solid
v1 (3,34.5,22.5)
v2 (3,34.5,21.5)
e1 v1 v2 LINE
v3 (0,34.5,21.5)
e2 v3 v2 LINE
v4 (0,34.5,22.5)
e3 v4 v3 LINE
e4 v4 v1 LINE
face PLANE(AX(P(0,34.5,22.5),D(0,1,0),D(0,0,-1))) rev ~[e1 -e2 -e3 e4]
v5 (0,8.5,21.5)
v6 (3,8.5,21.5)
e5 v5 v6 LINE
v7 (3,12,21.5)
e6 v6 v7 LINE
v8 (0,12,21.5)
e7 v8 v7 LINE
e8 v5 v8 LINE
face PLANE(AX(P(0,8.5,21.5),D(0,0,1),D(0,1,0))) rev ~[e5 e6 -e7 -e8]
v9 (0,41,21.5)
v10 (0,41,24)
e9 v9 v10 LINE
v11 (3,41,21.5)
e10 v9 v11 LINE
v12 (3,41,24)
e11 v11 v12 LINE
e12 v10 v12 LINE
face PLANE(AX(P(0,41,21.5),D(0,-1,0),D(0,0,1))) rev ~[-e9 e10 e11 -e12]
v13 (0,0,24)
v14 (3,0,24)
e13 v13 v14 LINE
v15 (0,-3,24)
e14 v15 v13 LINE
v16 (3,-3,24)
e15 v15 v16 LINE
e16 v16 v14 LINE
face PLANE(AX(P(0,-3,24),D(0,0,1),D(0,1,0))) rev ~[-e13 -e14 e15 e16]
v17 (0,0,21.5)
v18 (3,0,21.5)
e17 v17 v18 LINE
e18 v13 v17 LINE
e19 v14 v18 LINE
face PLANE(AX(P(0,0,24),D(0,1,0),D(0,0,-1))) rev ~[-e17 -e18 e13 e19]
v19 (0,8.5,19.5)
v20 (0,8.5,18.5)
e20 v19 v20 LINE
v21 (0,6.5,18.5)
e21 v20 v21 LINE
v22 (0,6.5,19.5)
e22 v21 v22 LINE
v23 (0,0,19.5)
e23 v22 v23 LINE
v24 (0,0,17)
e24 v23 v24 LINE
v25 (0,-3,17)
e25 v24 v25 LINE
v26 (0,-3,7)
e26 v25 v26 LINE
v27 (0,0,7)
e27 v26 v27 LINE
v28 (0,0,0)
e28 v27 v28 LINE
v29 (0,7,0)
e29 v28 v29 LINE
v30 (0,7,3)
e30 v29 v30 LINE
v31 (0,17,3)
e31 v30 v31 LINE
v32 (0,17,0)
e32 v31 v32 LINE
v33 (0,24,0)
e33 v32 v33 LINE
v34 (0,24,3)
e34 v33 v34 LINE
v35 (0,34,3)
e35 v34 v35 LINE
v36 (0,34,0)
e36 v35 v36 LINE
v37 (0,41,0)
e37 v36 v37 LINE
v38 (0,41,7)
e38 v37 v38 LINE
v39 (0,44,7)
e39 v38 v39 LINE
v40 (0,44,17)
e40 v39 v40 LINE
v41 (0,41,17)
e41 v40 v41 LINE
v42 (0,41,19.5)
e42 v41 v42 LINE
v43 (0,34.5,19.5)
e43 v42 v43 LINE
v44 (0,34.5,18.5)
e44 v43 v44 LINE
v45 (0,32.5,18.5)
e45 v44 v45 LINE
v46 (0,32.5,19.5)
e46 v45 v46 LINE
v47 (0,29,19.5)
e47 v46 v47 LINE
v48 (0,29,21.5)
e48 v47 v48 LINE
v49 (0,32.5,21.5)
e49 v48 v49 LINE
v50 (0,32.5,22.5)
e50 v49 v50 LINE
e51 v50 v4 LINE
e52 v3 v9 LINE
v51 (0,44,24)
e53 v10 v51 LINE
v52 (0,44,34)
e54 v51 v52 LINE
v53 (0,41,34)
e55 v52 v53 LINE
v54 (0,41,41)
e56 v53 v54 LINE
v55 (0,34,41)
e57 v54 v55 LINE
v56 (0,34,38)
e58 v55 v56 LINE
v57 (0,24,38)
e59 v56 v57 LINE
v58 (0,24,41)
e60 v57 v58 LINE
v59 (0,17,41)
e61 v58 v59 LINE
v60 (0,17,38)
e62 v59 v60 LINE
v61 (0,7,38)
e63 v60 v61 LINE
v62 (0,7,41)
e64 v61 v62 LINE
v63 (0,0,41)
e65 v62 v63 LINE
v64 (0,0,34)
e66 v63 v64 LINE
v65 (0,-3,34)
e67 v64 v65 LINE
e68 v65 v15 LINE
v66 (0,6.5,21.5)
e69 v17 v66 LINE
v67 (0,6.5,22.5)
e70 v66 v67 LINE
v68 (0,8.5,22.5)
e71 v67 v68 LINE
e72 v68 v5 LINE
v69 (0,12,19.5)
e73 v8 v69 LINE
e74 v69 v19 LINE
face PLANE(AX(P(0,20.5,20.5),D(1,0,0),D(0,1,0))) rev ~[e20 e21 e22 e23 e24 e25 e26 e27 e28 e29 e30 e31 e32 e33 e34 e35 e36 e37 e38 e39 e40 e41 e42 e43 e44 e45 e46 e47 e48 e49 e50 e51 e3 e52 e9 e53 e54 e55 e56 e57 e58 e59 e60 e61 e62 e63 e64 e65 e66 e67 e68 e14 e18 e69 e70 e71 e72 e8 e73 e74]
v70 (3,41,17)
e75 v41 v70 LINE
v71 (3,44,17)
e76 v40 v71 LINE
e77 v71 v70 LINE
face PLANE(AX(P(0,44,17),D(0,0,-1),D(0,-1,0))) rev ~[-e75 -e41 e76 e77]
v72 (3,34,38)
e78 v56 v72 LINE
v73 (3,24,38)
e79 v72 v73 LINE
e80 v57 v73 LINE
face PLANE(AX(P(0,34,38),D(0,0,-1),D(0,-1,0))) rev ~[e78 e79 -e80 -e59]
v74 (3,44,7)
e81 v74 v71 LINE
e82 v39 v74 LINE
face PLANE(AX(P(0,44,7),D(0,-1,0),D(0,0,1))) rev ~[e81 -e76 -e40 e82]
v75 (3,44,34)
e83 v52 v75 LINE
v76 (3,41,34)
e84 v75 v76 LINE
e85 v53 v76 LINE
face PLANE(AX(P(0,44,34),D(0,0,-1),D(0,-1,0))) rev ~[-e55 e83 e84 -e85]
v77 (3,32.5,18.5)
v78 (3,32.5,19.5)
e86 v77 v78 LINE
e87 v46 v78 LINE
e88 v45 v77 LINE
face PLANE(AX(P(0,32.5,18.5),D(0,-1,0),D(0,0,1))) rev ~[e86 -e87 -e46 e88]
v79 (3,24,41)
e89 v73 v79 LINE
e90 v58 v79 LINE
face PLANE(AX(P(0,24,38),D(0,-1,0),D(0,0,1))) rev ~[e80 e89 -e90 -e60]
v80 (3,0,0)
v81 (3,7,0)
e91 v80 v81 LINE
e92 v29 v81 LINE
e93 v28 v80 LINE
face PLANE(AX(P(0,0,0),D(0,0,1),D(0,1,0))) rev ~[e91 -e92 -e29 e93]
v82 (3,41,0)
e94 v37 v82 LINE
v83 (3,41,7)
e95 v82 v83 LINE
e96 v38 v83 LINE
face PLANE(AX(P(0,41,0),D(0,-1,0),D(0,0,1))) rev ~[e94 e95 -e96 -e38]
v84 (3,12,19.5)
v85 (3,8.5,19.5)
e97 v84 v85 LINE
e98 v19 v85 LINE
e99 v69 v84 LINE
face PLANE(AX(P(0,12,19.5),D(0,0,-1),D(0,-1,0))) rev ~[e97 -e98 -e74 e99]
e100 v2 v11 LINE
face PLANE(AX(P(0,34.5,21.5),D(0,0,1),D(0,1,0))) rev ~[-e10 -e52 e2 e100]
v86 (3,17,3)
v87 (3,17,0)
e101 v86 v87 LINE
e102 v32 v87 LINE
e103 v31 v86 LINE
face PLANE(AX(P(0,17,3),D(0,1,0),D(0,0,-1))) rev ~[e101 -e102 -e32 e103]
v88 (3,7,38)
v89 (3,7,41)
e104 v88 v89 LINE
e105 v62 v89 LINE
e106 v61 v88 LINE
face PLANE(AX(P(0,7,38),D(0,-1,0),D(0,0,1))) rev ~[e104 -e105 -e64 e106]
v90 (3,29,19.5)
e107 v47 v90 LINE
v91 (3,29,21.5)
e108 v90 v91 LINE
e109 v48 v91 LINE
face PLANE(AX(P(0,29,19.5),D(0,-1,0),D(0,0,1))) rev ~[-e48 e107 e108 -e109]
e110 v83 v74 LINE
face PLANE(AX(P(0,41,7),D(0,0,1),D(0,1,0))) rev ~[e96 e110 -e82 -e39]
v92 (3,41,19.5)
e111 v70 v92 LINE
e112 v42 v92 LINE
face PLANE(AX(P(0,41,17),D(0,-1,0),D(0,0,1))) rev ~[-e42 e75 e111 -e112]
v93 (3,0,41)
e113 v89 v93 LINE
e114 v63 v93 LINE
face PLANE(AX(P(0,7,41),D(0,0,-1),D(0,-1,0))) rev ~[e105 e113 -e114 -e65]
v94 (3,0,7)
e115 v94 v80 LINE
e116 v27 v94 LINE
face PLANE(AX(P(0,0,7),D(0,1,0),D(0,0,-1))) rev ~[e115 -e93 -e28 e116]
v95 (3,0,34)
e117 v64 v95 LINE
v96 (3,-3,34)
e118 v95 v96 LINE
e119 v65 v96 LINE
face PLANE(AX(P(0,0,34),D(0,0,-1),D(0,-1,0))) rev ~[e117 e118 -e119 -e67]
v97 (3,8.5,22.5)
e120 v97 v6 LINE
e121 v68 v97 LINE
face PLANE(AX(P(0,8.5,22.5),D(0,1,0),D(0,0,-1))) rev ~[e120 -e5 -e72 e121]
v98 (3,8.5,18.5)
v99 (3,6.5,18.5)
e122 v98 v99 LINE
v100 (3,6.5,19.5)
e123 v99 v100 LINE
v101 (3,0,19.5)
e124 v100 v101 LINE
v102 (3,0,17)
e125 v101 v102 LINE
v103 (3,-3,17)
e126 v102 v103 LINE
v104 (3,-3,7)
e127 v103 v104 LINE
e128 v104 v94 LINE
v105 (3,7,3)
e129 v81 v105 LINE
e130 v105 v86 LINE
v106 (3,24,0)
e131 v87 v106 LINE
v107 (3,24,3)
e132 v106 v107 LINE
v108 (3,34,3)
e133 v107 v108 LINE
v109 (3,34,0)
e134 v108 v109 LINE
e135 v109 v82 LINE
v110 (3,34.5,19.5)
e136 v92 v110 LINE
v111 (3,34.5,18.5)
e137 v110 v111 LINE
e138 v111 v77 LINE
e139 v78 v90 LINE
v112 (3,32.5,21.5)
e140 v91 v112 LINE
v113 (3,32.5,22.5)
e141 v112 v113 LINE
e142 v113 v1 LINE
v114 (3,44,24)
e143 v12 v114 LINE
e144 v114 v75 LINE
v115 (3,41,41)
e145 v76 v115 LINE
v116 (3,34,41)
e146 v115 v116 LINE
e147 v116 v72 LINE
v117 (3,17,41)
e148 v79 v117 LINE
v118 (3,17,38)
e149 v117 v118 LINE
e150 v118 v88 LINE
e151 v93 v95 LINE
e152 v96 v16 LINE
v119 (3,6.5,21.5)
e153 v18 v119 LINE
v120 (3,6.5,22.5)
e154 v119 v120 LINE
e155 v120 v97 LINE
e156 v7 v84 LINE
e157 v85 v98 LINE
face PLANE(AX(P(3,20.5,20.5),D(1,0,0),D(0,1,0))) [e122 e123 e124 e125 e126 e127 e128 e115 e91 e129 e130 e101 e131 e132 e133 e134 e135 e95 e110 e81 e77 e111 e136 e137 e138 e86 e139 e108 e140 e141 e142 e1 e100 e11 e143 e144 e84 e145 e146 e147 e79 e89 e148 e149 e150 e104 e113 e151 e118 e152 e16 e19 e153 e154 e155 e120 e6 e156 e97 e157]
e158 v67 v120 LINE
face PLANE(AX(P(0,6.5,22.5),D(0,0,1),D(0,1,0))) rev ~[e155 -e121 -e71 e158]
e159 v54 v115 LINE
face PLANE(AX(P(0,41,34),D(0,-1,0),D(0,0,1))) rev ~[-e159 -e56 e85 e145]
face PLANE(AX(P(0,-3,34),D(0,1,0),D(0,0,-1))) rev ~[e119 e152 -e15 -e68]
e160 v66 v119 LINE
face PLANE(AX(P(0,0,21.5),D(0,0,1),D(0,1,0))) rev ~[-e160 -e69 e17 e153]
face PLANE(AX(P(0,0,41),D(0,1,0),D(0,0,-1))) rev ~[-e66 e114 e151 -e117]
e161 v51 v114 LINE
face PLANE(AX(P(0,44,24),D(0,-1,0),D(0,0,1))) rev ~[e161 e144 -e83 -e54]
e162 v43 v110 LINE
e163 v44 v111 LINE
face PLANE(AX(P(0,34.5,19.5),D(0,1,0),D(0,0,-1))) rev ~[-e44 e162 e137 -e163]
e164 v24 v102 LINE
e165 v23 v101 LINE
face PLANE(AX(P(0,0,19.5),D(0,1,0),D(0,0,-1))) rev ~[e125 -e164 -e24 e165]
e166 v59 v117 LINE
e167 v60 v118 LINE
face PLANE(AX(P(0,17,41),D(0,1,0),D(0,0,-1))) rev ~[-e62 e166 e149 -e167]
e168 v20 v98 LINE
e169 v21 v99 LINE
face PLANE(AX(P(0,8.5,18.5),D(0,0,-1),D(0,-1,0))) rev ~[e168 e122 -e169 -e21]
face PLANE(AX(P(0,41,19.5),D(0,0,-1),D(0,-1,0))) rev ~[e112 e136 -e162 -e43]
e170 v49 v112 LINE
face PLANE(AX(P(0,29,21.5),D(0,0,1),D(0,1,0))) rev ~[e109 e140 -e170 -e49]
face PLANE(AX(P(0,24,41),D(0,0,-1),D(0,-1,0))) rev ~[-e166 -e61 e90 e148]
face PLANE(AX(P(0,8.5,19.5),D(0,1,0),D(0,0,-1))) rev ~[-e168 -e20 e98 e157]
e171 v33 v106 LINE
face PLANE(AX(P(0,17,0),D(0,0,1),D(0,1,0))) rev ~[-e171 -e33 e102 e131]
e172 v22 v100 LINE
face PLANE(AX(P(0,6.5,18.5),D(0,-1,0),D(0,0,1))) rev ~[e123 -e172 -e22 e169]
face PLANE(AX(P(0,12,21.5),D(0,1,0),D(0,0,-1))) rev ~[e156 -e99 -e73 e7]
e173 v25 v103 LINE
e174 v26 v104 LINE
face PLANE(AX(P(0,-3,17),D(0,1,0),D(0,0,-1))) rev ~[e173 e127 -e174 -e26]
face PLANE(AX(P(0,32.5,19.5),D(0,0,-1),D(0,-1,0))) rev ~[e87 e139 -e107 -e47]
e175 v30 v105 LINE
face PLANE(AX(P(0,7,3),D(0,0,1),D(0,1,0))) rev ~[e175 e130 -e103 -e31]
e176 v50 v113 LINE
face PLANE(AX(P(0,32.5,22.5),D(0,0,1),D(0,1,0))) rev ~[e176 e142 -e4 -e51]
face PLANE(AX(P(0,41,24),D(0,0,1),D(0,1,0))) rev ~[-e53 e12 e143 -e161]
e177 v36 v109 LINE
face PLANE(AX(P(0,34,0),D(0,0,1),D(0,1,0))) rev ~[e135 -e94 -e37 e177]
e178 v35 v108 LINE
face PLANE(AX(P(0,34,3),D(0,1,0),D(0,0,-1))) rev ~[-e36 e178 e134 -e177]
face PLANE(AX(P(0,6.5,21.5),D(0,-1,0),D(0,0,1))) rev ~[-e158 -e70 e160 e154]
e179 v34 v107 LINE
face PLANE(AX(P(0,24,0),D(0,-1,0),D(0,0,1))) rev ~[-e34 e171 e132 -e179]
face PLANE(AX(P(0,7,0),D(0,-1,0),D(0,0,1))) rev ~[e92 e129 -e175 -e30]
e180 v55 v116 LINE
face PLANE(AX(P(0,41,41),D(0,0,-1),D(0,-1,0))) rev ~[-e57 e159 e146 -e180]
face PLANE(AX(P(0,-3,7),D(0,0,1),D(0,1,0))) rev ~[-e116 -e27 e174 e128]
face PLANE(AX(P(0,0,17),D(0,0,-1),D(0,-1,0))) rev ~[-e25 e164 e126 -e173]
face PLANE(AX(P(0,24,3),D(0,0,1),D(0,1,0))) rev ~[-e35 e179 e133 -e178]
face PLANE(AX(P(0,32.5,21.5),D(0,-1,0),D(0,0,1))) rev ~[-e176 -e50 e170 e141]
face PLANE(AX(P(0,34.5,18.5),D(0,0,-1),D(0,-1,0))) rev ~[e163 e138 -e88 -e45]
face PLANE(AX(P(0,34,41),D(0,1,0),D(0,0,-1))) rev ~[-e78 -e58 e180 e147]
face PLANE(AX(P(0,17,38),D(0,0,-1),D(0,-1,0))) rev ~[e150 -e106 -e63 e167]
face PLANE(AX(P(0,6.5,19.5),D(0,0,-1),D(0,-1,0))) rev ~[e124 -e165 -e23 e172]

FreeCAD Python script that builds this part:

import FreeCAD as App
import Part
import Sketcher

V = App.Vector

doc = App.newDocument("Part")
body = doc.addObject("PartDesign::Body", "Body")

# Sketch on YZ plane
sketch1 = body.newObject("Sketcher::SketchObject", "Sketch")
sketch1.AttachmentSupport = (doc.getObject("YZ_Plane"), [""])
sketch1.MapMode = "FlatFace"
sketch1.addGeometry([
    Part.LineSegment(V(24, 0, 0), V(24, 3, 0)),  # 0
    Part.LineSegment(V(24, 3, 0), V(34, 3, 0)),  # 1
    Part.LineSegment(V(34, 3, 0), V(34, 0, 0)),  # 2
    Part.LineSegment(V(34, 0, 0), V(41, 0, 0)),  # 3
    Part.LineSegment(V(41, 0, 0), V(41, 7, 0)),  # 4
    Part.LineSegment(V(41, 7, 0), V(44, 7, 0)),  # 5
    Part.LineSegment(V(44, 7, 0), V(44, 17, 0)),  # 6
    Part.LineSegment(V(44, 17, 0), V(41, 17, 0)),  # 7
    Part.LineSegment(V(41, 17, 0), V(41, 19.5, 0)),  # 8
    Part.LineSegment(V(41, 19.5, 0), V(34.5, 19.5, 0)),  # 9
    Part.LineSegment(V(34.5, 19.5, 0), V(34.5, 18.5, 0)),  # 10
    Part.LineSegment(V(34.5, 18.5, 0), V(32.5, 18.5, 0)),  # 11
    Part.LineSegment(V(32.5, 18.5, 0), V(32.5, 19.5, 0)),  # 12
    Part.LineSegment(V(32.5, 19.5, 0), V(29, 19.5, 0)),  # 13
    Part.LineSegment(V(29, 19.5, 0), V(29, 21.5, 0)),  # 14
    Part.LineSegment(V(29, 21.5, 0), V(32.5, 21.5, 0)),  # 15
    Part.LineSegment(V(32.5, 21.5, 0), V(32.5, 22.5, 0)),  # 16
    Part.LineSegment(V(32.5, 22.5, 0), V(34.5, 22.5, 0)),  # 17
    Part.LineSegment(V(34.5, 22.5, 0), V(34.5, 21.5, 0)),  # 18
    Part.LineSegment(V(34.5, 21.5, 0), V(41, 21.5, 0)),  # 19
    Part.LineSegment(V(41, 21.5, 0), V(41, 24, 0)),  # 20
    Part.LineSegment(V(41, 24, 0), V(44, 24, 0)),  # 21
    Part.LineSegment(V(44, 24, 0), V(44, 34, 0)),  # 22
    Part.LineSegment(V(44, 34, 0), V(41, 34, 0)),  # 23
    Part.LineSegment(V(41, 34, 0), V(41, 41, 0)),  # 24
    Part.LineSegment(V(41, 41, 0), V(34, 41, 0)),  # 25
    Part.LineSegment(V(34, 41, 0), V(34, 38, 0)),  # 26
    Part.LineSegment(V(34, 38, 0), V(24, 38, 0)),  # 27
    Part.LineSegment(V(24, 38, 0), V(24, 41, 0)),  # 28
    Part.LineSegment(V(24, 41, 0), V(17, 41, 0)),  # 29
    Part.LineSegment(V(17, 41, 0), V(17, 38, 0)),  # 30
    Part.LineSegment(V(17, 38, 0), V(7, 38, 0)),  # 31
    Part.LineSegment(V(7, 38, 0), V(7, 41, 0)),  # 32
    Part.LineSegment(V(7, 41, 0), V(0, 41, 0)),  # 33
    Part.LineSegment(V(0, 41, 0), V(0, 34, 0)),  # 34
    Part.LineSegment(V(0, 34, 0), V(-3, 34, 0)),  # 35
    Part.LineSegment(V(-3, 34, 0), V(-3, 24, 0)),  # 36
    Part.LineSegment(V(-3, 24, 0), V(0, 24, 0)),  # 37
    Part.LineSegment(V(0, 24, 0), V(0, 21.5, 0)),  # 38
    Part.LineSegment(V(0, 21.5, 0), V(6.5, 21.5, 0)),  # 39
    Part.LineSegment(V(6.5, 21.5, 0), V(6.5, 22.5, 0)),  # 40
    Part.LineSegment(V(6.5, 22.5, 0), V(8.5, 22.5, 0)),  # 41
    Part.LineSegment(V(8.5, 22.5, 0), V(8.5, 21.5, 0)),  # 42
    Part.LineSegment(V(8.5, 21.5, 0), V(12, 21.5, 0)),  # 43
    Part.LineSegment(V(12, 21.5, 0), V(12, 19.5, 0)),  # 44
    Part.LineSegment(V(12, 19.5, 0), V(8.5, 19.5, 0)),  # 45
    Part.LineSegment(V(8.5, 19.5, 0), V(8.5, 18.5, 0)),  # 46
    Part.LineSegment(V(8.5, 18.5, 0), V(6.5, 18.5, 0)),  # 47
    Part.LineSegment(V(6.5, 18.5, 0), V(6.5, 19.5, 0)),  # 48
    Part.LineSegment(V(6.5, 19.5, 0), V(0, 19.5, 0)),  # 49
    Part.LineSegment(V(0, 19.5, 0), V(0, 17, 0)),  # 50
    Part.LineSegment(V(0, 17, 0), V(-3, 17, 0)),  # 51
    Part.LineSegment(V(-3, 17, 0), V(-3, 7, 0)),  # 52
    Part.LineSegment(V(-3, 7, 0), V(0, 7, 0)),  # 53
    Part.LineSegment(V(0, 7, 0), V(0, 0, 0)),  # 54
    Part.LineSegment(V(0, 0, 0), V(7, 0, 0)),  # 55
    Part.LineSegment(V(7, 0, 0), V(7, 3, 0)),  # 56
    Part.LineSegment(V(7, 3, 0), V(17, 3, 0)),  # 57
    Part.LineSegment(V(17, 3, 0), V(17, 0, 0)),  # 58
    Part.LineSegment(V(17, 0, 0), V(24, 0, 0)),  # 59
], False)
sketch1.addConstraint([
    Sketcher.Constraint("Coincident", 0, 2, 1, 1),
    Sketcher.Constraint("Coincident", 1, 2, 2, 1),
    Sketcher.Constraint("Coincident", 2, 2, 3, 1),
    Sketcher.Constraint("Coincident", 3, 2, 4, 1),
    Sketcher.Constraint("Coincident", 4, 2, 5, 1),
    Sketcher.Constraint("Coincident", 5, 2, 6, 1),
    Sketcher.Constraint("Coincident", 6, 2, 7, 1),
    Sketcher.Constraint("Coincident", 7, 2, 8, 1),
    Sketcher.Constraint("Coincident", 8, 2, 9, 1),
    Sketcher.Constraint("Coincident", 9, 2, 10, 1),
    Sketcher.Constraint("Coincident", 10, 2, 11, 1),
    Sketcher.Constraint("Coincident", 11, 2, 12, 1),
    Sketcher.Constraint("Coincident", 12, 2, 13, 1),
    Sketcher.Constraint("Coincident", 13, 2, 14, 1),
    Sketcher.Constraint("Coincident", 14, 2, 15, 1),
    Sketcher.Constraint("Coincident", 15, 2, 16, 1),
    Sketcher.Constraint("Coincident", 16, 2, 17, 1),
    Sketcher.Constraint("Coincident", 17, 2, 18, 1),
    Sketcher.Constraint("Coincident", 18, 2, 19, 1),
    Sketcher.Constraint("Coincident", 19, 2, 20, 1),
    Sketcher.Constraint("Coincident", 20, 2, 21, 1),
    Sketcher.Constraint("Coincident", 21, 2, 22, 1),
    Sketcher.Constraint("Coincident", 22, 2, 23, 1),
    Sketcher.Constraint("Coincident", 23, 2, 24, 1),
    Sketcher.Constraint("Coincident", 24, 2, 25, 1),
    Sketcher.Constraint("Coincident", 25, 2, 26, 1),
    Sketcher.Constraint("Coincident", 26, 2, 27, 1),
    Sketcher.Constraint("Coincident", 27, 2, 28, 1),
    Sketcher.Constraint("Coincident", 28, 2, 29, 1),
    Sketcher.Constraint("Coincident", 29, 2, 30, 1),
    Sketcher.Constraint("Coincident", 30, 2, 31, 1),
    Sketcher.Constraint("Coincident", 31, 2, 32, 1),
    Sketcher.Constraint("Coincident", 32, 2, 33, 1),
    Sketcher.Constraint("Coincident", 33, 2, 34, 1),
    Sketcher.Constraint("Coincident", 34, 2, 35, 1),
    Sketcher.Constraint("Coincident", 35, 2, 36, 1),
    Sketcher.Constraint("Coincident", 36, 2, 37, 1),
    Sketcher.Constraint("Coincident", 37, 2, 38, 1),
    Sketcher.Constraint("Coincident", 38, 2, 39, 1),
    Sketcher.Constraint("Coincident", 39, 2, 40, 1),
    Sketcher.Constraint("Coincident", 40, 2, 41, 1),
    Sketcher.Constraint("Coincident", 41, 2, 42, 1),
    Sketcher.Constraint("Coincident", 42, 2, 43, 1),
    Sketcher.Constraint("Coincident", 43, 2, 44, 1),
    Sketcher.Constraint("Coincident", 44, 2, 45, 1),
    Sketcher.Constraint("Coincident", 45, 2, 46, 1),
    Sketcher.Constraint("Coincident", 46, 2, 47, 1),
    Sketcher.Constraint("Coincident", 47, 2, 48, 1),
    Sketcher.Constraint("Coincident", 48, 2, 49, 1),
    Sketcher.Constraint("Coincident", 49, 2, 50, 1),
    Sketcher.Constraint("Coincident", 50, 2, 51, 1),
    Sketcher.Constraint("Coincident", 51, 2, 52, 1),
    Sketcher.Constraint("Coincident", 52, 2, 53, 1),
    Sketcher.Constraint("Coincident", 53, 2, 54, 1),
    Sketcher.Constraint("Coincident", 54, 2, 55, 1),
    Sketcher.Constraint("Coincident", 55, 2, 56, 1),
    Sketcher.Constraint("Coincident", 56, 2, 57, 1),
    Sketcher.Constraint("Coincident", 57, 2, 58, 1),
    Sketcher.Constraint("Coincident", 58, 2, 59, 1),
    Sketcher.Constraint("Coincident", 59, 2, 0, 1),
    Sketcher.Constraint("Vertical", 0),
    Sketcher.Constraint("Horizontal", 1),
    Sketcher.Constraint("Vertical", 2),
    Sketcher.Constraint("Horizontal", 3),
    Sketcher.Constraint("Vertical", 4),
    Sketcher.Constraint("Horizontal", 5),
    Sketcher.Constraint("Vertical", 6),
    Sketcher.Constraint("Horizontal", 7),
    Sketcher.Constraint("Vertical", 8),
    Sketcher.Constraint("Horizontal", 9),
    Sketcher.Constraint("Vertical", 10),
    Sketcher.Constraint("Horizontal", 11),
    Sketcher.Constraint("Vertical", 12),
    Sketcher.Constraint("Horizontal", 13),
    Sketcher.Constraint("Vertical", 14),
    Sketcher.Constraint("Horizontal", 15),
    Sketcher.Constraint("Vertical", 16),
    Sketcher.Constraint("Horizontal", 17),
    Sketcher.Constraint("Vertical", 18),
    Sketcher.Constraint("Horizontal", 19),
    Sketcher.Constraint("Vertical", 20),
    Sketcher.Constraint("Horizontal", 21),
    Sketcher.Constraint("Vertical", 22),
    Sketcher.Constraint("Horizontal", 23),
    Sketcher.Constraint("Vertical", 24),
    Sketcher.Constraint("Horizontal", 25),
    Sketcher.Constraint("Vertical", 26),
    Sketcher.Constraint("Horizontal", 27),
    Sketcher.Constraint("Vertical", 28),
    Sketcher.Constraint("Horizontal", 29),
    Sketcher.Constraint("Vertical", 30),
    Sketcher.Constraint("Horizontal", 31),
    Sketcher.Constraint("Vertical", 32),
    Sketcher.Constraint("Horizontal", 33),
    Sketcher.Constraint("Vertical", 34),
    Sketcher.Constraint("Horizontal", 35),
    Sketcher.Constraint("Vertical", 36),
    Sketcher.Constraint("Horizontal", 37),
    Sketcher.Constraint("Vertical", 38),
    Sketcher.Constraint("Horizontal", 39),
    Sketcher.Constraint("Vertical", 40),
    Sketcher.Constraint("Horizontal", 41),
    Sketcher.Constraint("Vertical", 42),
    Sketcher.Constraint("Horizontal", 43),
    Sketcher.Constraint("Vertical", 44),
    Sketcher.Constraint("Horizontal", 45),
    Sketcher.Constraint("Vertical", 46),
    Sketcher.Constraint("Horizontal", 47),
    Sketcher.Constraint("Vertical", 48),
    Sketcher.Constraint("Horizontal", 49),
    Sketcher.Constraint("Vertical", 50),
    Sketcher.Constraint("Horizontal", 51),
    Sketcher.Constraint("Vertical", 52),
    Sketcher.Constraint("Horizontal", 53),
    Sketcher.Constraint("Vertical", 54),
    Sketcher.Constraint("Horizontal", 55),
    Sketcher.Constraint("Vertical", 56),
    Sketcher.Constraint("Horizontal", 57),
    Sketcher.Constraint("Vertical", 58),
    Sketcher.Constraint("Horizontal", 59),
    Sketcher.Constraint("Coincident", 54, 2, -1, 1),
    Sketcher.Constraint("PointOnObject", 2, 2, -1),
    Sketcher.Constraint("PointOnObject", 33, 2, -2),
    Sketcher.Constraint("PointOnObject", 37, 2, -2),
    Sketcher.Constraint("PointOnObject", 49, 2, -2),
    Sketcher.Constraint("PointOnObject", 58, 2, -1),
    Sketcher.Constraint("Horizontal", 9, 2, 12, 2),
    Sketcher.Constraint("Horizontal", 15, 2, 18, 2),
    Sketcher.Constraint("Horizontal", 25, 2, 28, 2),
    Sketcher.Constraint("Horizontal", 27, 2, 30, 2),
    Sketcher.Constraint("Horizontal", 29, 2, 32, 2),
    Sketcher.Constraint("Horizontal", 23, 2, 34, 2),
    Sketcher.Constraint("Horizontal", 21, 2, 36, 2),
    Sketcher.Constraint("Horizontal", 19, 2, 38, 2),
    Sketcher.Constraint("Horizontal", 17, 2, 40, 2),
    Sketcher.Constraint("Horizontal", 39, 2, 42, 2),
    Sketcher.Constraint("Horizontal", 13, 2, 44, 2),
    Sketcher.Constraint("Horizontal", 11, 2, 46, 2),
    Sketcher.Constraint("Horizontal", 45, 2, 48, 2),
    Sketcher.Constraint("Horizontal", 7, 2, 50, 2),
    Sketcher.Constraint("Horizontal", 5, 2, 52, 2),
    Sketcher.Constraint("Horizontal", 1, 2, 56, 2),
    Sketcher.Constraint("Vertical", 4, 2, 7, 2),
    Sketcher.Constraint("Vertical", 12, 2, 15, 2),
    Sketcher.Constraint("Vertical", 10, 2, 17, 2),
    Sketcher.Constraint("Vertical", 8, 2, 19, 2),
    Sketcher.Constraint("Vertical", 6, 2, 21, 2),
    Sketcher.Constraint("Vertical", 20, 2, 23, 2),
    Sketcher.Constraint("Vertical", 2, 2, 25, 2),
    Sketcher.Constraint("Vertical", 0, 2, 27, 2),
    Sketcher.Constraint("Vertical", 42, 2, 45, 2),
    Sketcher.Constraint("Vertical", 40, 2, 47, 2),
    Sketcher.Constraint("Vertical", 36, 2, 51, 2),
    Sketcher.Constraint("Vertical", 32, 2, 55, 2),
    Sketcher.Constraint("Vertical", 30, 2, 57, 2),
    Sketcher.Constraint("Equal", 25, 29),
    Sketcher.Constraint("Equal", 27, 31),
    Sketcher.Constraint("Equal", 29, 33),
    Sketcher.Constraint("Equal", 23, 35),
    Sketcher.Constraint("Equal", 19, 39),
    Sketcher.Constraint("Equal", 17, 41),
    Sketcher.Constraint("Equal", 15, 43),
    Sketcher.Constraint("Equal", 53, 0),
    Sketcher.Constraint("Equal", 59, 4),
    Sketcher.Constraint("Equal", 57, 6),
    Sketcher.Constraint("Equal", 47, 14),
    Sketcher.Constraint("Equal", 12, 16),
    Sketcher.Constraint("Equal", 8, 20),
    Sketcher.Constraint("Equal", 6, 22),
    Sketcher.Constraint("Equal", 4, 24),
    Sketcher.Constraint("Equal", 2, 26),
    Sketcher.Constraint("DistanceX", 1, 1, 1, 2, 10.0),
    Sketcher.Constraint("DistanceX", 3, 1, 3, 2, 7.0),
    Sketcher.Constraint("DistanceX", 5, 1, 5, 2, 3.0),
    Sketcher.Constraint("DistanceX", 11, 2, 11, 1, 2.0),
    Sketcher.Constraint("DistanceY", 10, 2, 10, 1, 1.0),
    Sketcher.Constraint("DistanceX", 9, 2, 9, 1, 6.5),
    Sketcher.Constraint("DistanceX", 13, 2, 13, 1, 3.5),
    Sketcher.Constraint("DistanceY", 8, 1, 8, 2, 2.5),
])
pad1 = body.newObject("PartDesign::Pad", "Pad")
pad1.Profile = sketch1
pad1.Length = 3

doc.recompute()
